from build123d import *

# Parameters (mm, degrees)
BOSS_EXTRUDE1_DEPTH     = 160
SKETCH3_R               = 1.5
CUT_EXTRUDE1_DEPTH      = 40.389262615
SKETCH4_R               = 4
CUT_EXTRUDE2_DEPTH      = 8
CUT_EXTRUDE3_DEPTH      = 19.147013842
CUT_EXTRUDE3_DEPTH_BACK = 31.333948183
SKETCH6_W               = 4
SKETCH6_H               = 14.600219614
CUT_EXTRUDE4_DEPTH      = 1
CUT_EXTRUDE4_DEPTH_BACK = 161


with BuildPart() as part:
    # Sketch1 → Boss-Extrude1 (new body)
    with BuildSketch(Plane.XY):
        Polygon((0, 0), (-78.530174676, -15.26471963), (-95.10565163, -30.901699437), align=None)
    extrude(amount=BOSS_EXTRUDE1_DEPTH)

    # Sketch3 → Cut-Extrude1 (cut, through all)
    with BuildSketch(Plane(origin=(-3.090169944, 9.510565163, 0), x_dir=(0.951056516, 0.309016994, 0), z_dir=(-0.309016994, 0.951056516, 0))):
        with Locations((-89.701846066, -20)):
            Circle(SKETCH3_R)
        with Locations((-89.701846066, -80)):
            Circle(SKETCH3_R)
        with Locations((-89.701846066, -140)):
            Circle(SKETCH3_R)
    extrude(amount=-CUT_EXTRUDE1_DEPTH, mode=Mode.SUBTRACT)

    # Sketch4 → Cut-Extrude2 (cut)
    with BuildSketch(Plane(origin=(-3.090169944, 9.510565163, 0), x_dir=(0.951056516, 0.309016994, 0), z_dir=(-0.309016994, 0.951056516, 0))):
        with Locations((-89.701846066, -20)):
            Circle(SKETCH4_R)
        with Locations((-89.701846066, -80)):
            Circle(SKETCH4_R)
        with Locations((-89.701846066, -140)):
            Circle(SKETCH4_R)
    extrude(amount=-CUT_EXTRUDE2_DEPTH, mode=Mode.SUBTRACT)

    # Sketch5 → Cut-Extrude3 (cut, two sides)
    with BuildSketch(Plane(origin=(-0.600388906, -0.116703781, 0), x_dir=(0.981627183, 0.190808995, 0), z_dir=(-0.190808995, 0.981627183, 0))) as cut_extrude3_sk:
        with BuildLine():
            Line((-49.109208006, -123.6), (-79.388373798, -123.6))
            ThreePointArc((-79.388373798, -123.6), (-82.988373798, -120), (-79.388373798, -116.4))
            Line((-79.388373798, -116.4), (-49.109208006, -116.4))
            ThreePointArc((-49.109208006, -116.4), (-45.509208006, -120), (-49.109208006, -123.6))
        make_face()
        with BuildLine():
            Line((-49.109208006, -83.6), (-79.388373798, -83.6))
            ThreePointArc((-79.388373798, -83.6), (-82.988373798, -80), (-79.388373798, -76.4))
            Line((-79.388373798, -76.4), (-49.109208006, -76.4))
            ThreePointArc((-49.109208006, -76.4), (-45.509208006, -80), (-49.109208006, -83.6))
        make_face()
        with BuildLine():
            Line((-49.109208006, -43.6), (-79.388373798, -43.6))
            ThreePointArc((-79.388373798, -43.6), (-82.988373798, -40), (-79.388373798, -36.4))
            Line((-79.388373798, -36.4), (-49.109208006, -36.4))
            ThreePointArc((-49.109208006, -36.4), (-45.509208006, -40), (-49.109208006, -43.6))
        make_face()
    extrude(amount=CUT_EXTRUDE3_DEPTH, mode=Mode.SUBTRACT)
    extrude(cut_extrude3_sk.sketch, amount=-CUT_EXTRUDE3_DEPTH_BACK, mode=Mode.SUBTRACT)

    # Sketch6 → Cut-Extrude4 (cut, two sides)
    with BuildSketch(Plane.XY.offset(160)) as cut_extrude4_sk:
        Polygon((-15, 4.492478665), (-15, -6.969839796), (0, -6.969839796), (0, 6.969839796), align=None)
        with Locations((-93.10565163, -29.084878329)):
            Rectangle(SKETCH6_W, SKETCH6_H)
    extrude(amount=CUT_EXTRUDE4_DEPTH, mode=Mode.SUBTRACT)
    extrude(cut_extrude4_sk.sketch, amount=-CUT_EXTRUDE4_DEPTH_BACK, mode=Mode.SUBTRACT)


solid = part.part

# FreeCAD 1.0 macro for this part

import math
import FreeCAD as App
import Part
import Sketcher
from FreeCAD import Vector
Q = App.Units.Quantity


def add_polygon(sketch, points):
    """Adds a closed chain of lines whose ends are joined by coincident constraints."""
    first, n = sketch.GeometryCount, len(points)
    for a, b in zip(points, points[1:] + points[:1]):
        sketch.addGeometry(Part.LineSegment(App.Vector(*a, 0), App.Vector(*b, 0)), False)
    for i in range(n):
        sketch.addConstraint(Sketcher.Constraint("Coincident", first + i, 2, first + (i + 1) % n, 1))

doc = App.newDocument("Part")
params = doc.addObject("Spreadsheet::Sheet", "Params")
for row, (alias, value) in enumerate([
    ("sketch1_length", "80 mm"),
    ("sketch1_length2", "100 mm"),
    ("pad1_length", "160 mm"),
    ("sketch2_diameter", "3 mm"),
    ("sketch3_diameter", "8 mm"),
    ("pocket2_length", "8 mm"),
    ("sketch4_radius", "3.6 mm"),
    ("sketch5_width", "15 mm"),
    ("sketch5_width2", "4 mm"),
], start=1):
    params.set(f"A{row}", alias)
    params.set(f"B{row}", "=" + value)
    params.setAlias(f"B{row}", alias)

body = doc.addObject("PartDesign::Body", "Body")

# Sketch on XY plane
sketch1 = doc.addObject("Sketcher::SketchObject", "Sketch")
body.addObject(sketch1)
sketch1.AttachmentSupport = (doc.XY_Plane, [""])
sketch1.MapMode = "FlatFace"
add_polygon(sketch1, [(0, 0), (-79, -15), (-95, -31)])  # lines 0-2
sketch1.addConstraint(Sketcher.Constraint("Coincident", 2, 2, -1, 1))
sketch1.addConstraint(Sketcher.Constraint("Angle", 0, Q("-169 deg")))
sketch1.addConstraint(Sketcher.Constraint("Angle", 2, Q("18 deg")))
sketch1.addConstraint(Sketcher.Constraint("Distance", 0, 80.0))
sketch1.addConstraint(Sketcher.Constraint("Distance", 2, 100.0))
sketch1.setExpression("Constraints[6]", "Params.sketch1_length")
sketch1.setExpression("Constraints[7]", "Params.sketch1_length2")
pad1 = doc.addObject("PartDesign::Pad", "Pad")
body.addObject(pad1)
pad1.Profile = sketch1
pad1.setExpression("Length", "Params.pad1_length")

# Sketch on an angled plane
sketch2 = doc.addObject("Sketcher::SketchObject", "Sketch001")
body.addObject(sketch2)
sketch2.Placement = App.Placement(Vector(-3.09017, 9.510565, 0), App.Rotation(Vector(0.951056516, 0.309016994, 0), Vector(0, 0, -0.999999999), Vector(-0.309016994, 0.951056516, 0), "ZXY"))
sketch2.addGeometry(Part.Circle(Vector(-89.7, -20, 0), Vector(0, 0, 1), 1.5), False)
sketch2.addGeometry(Part.Circle(Vector(-89.7, -80, 0), Vector(0, 0, 1), 1.5), False)
sketch2.addGeometry(Part.Circle(Vector(-89.7, -140, 0), Vector(0, 0, 1), 1.5), False)
sketch2.addConstraint(Sketcher.Constraint("Equal", 0, 1))
sketch2.addConstraint(Sketcher.Constraint("Equal", 1, 2))
sketch2.addConstraint(Sketcher.Constraint("Vertical", 0, 3, 1, 3))
sketch2.addConstraint(Sketcher.Constraint("Vertical", 1, 3, 2, 3))
sketch2.addConstraint(Sketcher.Constraint("Diameter", 0, 3.0))
sketch2.addConstraint(Sketcher.Constraint("DistanceY", 0, 3, -1, 1, 20.0))
sketch2.addConstraint(Sketcher.Constraint("DistanceY", 1, 3, -1, 1, 80.0))
sketch2.addConstraint(Sketcher.Constraint("DistanceY", 2, 3, -1, 1, 140.0))
sketch2.addConstraint(Sketcher.Constraint("DistanceX", 0, 3, -1, 1, 89.701846))
sketch2.setExpression("Constraints[4]", "Params.sketch2_diameter")
pocket1 = doc.addObject("PartDesign::Pocket", "Pocket")
body.addObject(pocket1)
pocket1.Profile = sketch2
pocket1.Type = "ThroughAll"

# Sketch on an angled plane
sketch3 = doc.addObject("Sketcher::SketchObject", "Sketch002")
body.addObject(sketch3)
sketch3.Placement = App.Placement(Vector(-3.09017, 9.510565, 0), App.Rotation(Vector(0.951056516, 0.309016994, 0), Vector(0, 0, -0.999999999), Vector(-0.309016994, 0.951056516, 0), "ZXY"))
sketch3.addGeometry(Part.Circle(Vector(-89.7, -20, 0), Vector(0, 0, 1), 4), False)
sketch3.addGeometry(Part.Circle(Vector(-89.7, -80, 0), Vector(0, 0, 1), 4), False)
sketch3.addGeometry(Part.Circle(Vector(-89.7, -140, 0), Vector(0, 0, 1), 4), False)
sketch3.addConstraint(Sketcher.Constraint("Equal", 0, 1))
sketch3.addConstraint(Sketcher.Constraint("Equal", 1, 2))
sketch3.addConstraint(Sketcher.Constraint("Vertical", 0, 3, 1, 3))
sketch3.addConstraint(Sketcher.Constraint("Vertical", 1, 3, 2, 3))
sketch3.addConstraint(Sketcher.Constraint("Diameter", 0, 8.0))
sketch3.addConstraint(Sketcher.Constraint("DistanceY", 0, 3, -1, 1, 20.0))
sketch3.addConstraint(Sketcher.Constraint("DistanceY", 1, 3, -1, 1, 80.0))
sketch3.addConstraint(Sketcher.Constraint("DistanceY", 2, 3, -1, 1, 140.0))
sketch3.addConstraint(Sketcher.Constraint("DistanceX", 0, 3, -1, 1, 89.701846))
sketch3.setExpression("Constraints[4]", "Params.sketch3_diameter")
pocket2 = doc.addObject("PartDesign::Pocket", "Pocket001")
body.addObject(pocket2)
pocket2.Profile = sketch3
pocket2.setExpression("Length", "Params.pocket2_length")

# Sketch on an angled plane
sketch4 = doc.addObject("Sketcher::SketchObject", "Sketch003")
body.addObject(sketch4)
sketch4.Placement = App.Placement(Vector(-0.600389, -0.116704, 0), App.Rotation(Vector(0.981627184, 0.190808995, 0), Vector(0, 0, -1.000000001), Vector(-0.190808995, 0.981627184, 0), "ZXY"))
sketch4.addGeometry(Part.LineSegment(Vector(-79.4, -123.6, 0), Vector(-49.1, -123.6, 0)), False)
sketch4.addGeometry(Part.ArcOfCircle(Part.Circle(Vector(-49.1, -120, 0), Vector(0, 0, 1), 3.6), math.radians(-90), math.radians(90)), False)
sketch4.addGeometry(Part.LineSegment(Vector(-49.1, -116.4, 0), Vector(-79.4, -116.4, 0)), False)
sketch4.addGeometry(Part.ArcOfCircle(Part.Circle(Vector(-79.4, -120, 0), Vector(0, 0, 1), 3.6), math.radians(90), math.radians(270)), False)
sketch4.addGeometry(Part.LineSegment(Vector(-79.4, -83.6, 0), Vector(-49.1, -83.6, 0)), False)
sketch4.addGeometry(Part.ArcOfCircle(Part.Circle(Vector(-49.1, -80, 0), Vector(0, 0, 1), 3.6), math.radians(-90), math.radians(90)), False)
sketch4.addGeometry(Part.LineSegment(Vector(-49.1, -76.4, 0), Vector(-79.4, -76.4, 0)), False)
sketch4.addGeometry(Part.ArcOfCircle(Part.Circle(Vector(-79.4, -80, 0), Vector(0, 0, 1), 3.6), math.radians(90), math.radians(270)), False)
sketch4.addGeometry(Part.LineSegment(Vector(-79.4, -43.6, 0), Vector(-49.1, -43.6, 0)), False)
sketch4.addGeometry(Part.ArcOfCircle(Part.Circle(Vector(-49.1, -40, 0), Vector(0, 0, 1), 3.6), math.radians(-90), math.radians(90)), False)
sketch4.addGeometry(Part.LineSegment(Vector(-49.1, -36.4, 0), Vector(-79.4, -36.4, 0)), False)
sketch4.addGeometry(Part.ArcOfCircle(Part.Circle(Vector(-79.4, -40, 0), Vector(0, 0, 1), 3.6), math.radians(90), math.radians(270)), False)
sketch4.addConstraint(Sketcher.Constraint("Tangent", 0, 2, 1, 1))
sketch4.addConstraint(Sketcher.Constraint("Tangent", 1, 2, 2, 1))
sketch4.addConstraint(Sketcher.Constraint("Tangent", 2, 2, 3, 1))
sketch4.addConstraint(Sketcher.Constraint("Tangent", 3, 2, 0, 1))
sketch4.addConstraint(Sketcher.Constraint("Tangent", 4, 2, 5, 1))
sketch4.addConstraint(Sketcher.Constraint("Tangent", 5, 2, 6, 1))
sketch4.addConstraint(Sketcher.Constraint("Tangent", 6, 2, 7, 1))
sketch4.addConstraint(Sketcher.Constraint("Tangent", 7, 2, 4, 1))
sketch4.addConstraint(Sketcher.Constraint("Tangent", 8, 2, 9, 1))
sketch4.addConstraint(Sketcher.Constraint("Tangent", 9, 2, 10, 1))
sketch4.addConstraint(Sketcher.Constraint("Tangent", 10, 2, 11, 1))
sketch4.addConstraint(Sketcher.Constraint("Tangent", 11, 2, 8, 1))
sketch4.addConstraint(Sketcher.Constraint("Horizontal", 0))
sketch4.addConstraint(Sketcher.Constraint("Horizontal", 2))
sketch4.addConstraint(Sketcher.Constraint("Horizontal", 4))
sketch4.addConstraint(Sketcher.Constraint("Horizontal", 6))
sketch4.addConstraint(Sketcher.Constraint("Horizontal", 8))
sketch4.addConstraint(Sketcher.Constraint("Horizontal", 10))
sketch4.addConstraint(Sketcher.Constraint("Equal", 3, 5))
sketch4.addConstraint(Sketcher.Constraint("Equal", 7, 9))
sketch4.addConstraint(Sketcher.Constraint("Vertical", 1, 3, 5, 3))
sketch4.addConstraint(Sketcher.Constraint("Vertical", 3, 3, 7, 3))
sketch4.addConstraint(Sketcher.Constraint("Vertical", 5, 3, 9, 3))
sketch4.addConstraint(Sketcher.Constraint("Vertical", 7, 3, 11, 3))
sketch4.addConstraint(Sketcher.Constraint("Radius", 1, 3.6))
sketch4.addConstraint(Sketcher.Constraint("DistanceY", 1, 3, -1, 1, 120.0))
sketch4.addConstraint(Sketcher.Constraint("DistanceY", 5, 3, -1, 1, 80.0))
sketch4.addConstraint(Sketcher.Constraint("DistanceY", 9, 3, -1, 1, 40.0))
sketch4.addConstraint(Sketcher.Constraint("DistanceX", 0, 1, 0, 2, 30.279166))
sketch4.addConstraint(Sketcher.Constraint("DistanceX", 1, 3, -1, 1, 49.109208))
sketch4.setExpression("Constraints[24]", "Params.sketch4_radius")
pocket3 = doc.addObject("PartDesign::Pocket", "Pocket002")
body.addObject(pocket3)
pocket3.Profile = sketch4
pocket3.Type = "ThroughAll"
pocket3.Midplane = True

# Sketch on XY plane
sketch5 = doc.addObject("Sketcher::SketchObject", "Sketch004")
body.addObject(sketch5)
sketch5.AttachmentSupport = (doc.XY_Plane, [""])
sketch5.MapMode = "FlatFace"
sketch5.AttachmentOffset = App.Placement(Vector(0, 0, 160), App.Rotation())
add_polygon(sketch5, [(-15, 4.5), (-15, -7), (0, -7), (0, 7)])  # lines 0-3
add_polygon(sketch5, [(-95.1, -21.8), (-95.1, -36.4), (-91.1, -36.4), (-91.1, -21.8)])  # lines 4-7
sketch5.addConstraint(Sketcher.Constraint("Vertical", 0))
sketch5.addConstraint(Sketcher.Constraint("Horizontal", 1))
sketch5.addConstraint(Sketcher.Constraint("Vertical", 2))
sketch5.addConstraint(Sketcher.Constraint("Vertical", 4))
sketch5.addConstraint(Sketcher.Constraint("Horizontal", 5))
sketch5.addConstraint(Sketcher.Constraint("Vertical", 6))
sketch5.addConstraint(Sketcher.Constraint("Horizontal", 7))
sketch5.addConstraint(Sketcher.Constraint("Symmetric", 1, 2, 2, 2, -1, 1))
sketch5.addConstraint(Sketcher.Constraint("DistanceX", 1, 1, 1, 2, 15.0))
sketch5.addConstraint(Sketcher.Constraint("DistanceX", 5, 1, 5, 2, 4.0))
sketch5.addConstraint(Sketcher.Constraint("Distance", 3, 15.203201))
sketch5.addConstraint(Sketcher.Constraint("DistanceY", 0, 2, 0, 1, 11.462318))
sketch5.addConstraint(Sketcher.Constraint("DistanceY", 4, 2, 4, 1, 14.60022))
sketch5.addConstraint(Sketcher.Constraint("DistanceX", 4, 2, -1, 1, 95.105652))
sketch5.addConstraint(Sketcher.Constraint("DistanceY", 4, 2, -1, 1, 36.384988))
sketch5.setExpression("Constraints[16]", "Params.sketch5_width")
sketch5.setExpression("Constraints[17]", "Params.sketch5_width2")
pocket4 = doc.addObject("PartDesign::Pocket", "Pocket003")
body.addObject(pocket4)
pocket4.Profile = sketch5
pocket4.Type = "ThroughAll"
pocket4.Midplane = True

doc.recompute()
